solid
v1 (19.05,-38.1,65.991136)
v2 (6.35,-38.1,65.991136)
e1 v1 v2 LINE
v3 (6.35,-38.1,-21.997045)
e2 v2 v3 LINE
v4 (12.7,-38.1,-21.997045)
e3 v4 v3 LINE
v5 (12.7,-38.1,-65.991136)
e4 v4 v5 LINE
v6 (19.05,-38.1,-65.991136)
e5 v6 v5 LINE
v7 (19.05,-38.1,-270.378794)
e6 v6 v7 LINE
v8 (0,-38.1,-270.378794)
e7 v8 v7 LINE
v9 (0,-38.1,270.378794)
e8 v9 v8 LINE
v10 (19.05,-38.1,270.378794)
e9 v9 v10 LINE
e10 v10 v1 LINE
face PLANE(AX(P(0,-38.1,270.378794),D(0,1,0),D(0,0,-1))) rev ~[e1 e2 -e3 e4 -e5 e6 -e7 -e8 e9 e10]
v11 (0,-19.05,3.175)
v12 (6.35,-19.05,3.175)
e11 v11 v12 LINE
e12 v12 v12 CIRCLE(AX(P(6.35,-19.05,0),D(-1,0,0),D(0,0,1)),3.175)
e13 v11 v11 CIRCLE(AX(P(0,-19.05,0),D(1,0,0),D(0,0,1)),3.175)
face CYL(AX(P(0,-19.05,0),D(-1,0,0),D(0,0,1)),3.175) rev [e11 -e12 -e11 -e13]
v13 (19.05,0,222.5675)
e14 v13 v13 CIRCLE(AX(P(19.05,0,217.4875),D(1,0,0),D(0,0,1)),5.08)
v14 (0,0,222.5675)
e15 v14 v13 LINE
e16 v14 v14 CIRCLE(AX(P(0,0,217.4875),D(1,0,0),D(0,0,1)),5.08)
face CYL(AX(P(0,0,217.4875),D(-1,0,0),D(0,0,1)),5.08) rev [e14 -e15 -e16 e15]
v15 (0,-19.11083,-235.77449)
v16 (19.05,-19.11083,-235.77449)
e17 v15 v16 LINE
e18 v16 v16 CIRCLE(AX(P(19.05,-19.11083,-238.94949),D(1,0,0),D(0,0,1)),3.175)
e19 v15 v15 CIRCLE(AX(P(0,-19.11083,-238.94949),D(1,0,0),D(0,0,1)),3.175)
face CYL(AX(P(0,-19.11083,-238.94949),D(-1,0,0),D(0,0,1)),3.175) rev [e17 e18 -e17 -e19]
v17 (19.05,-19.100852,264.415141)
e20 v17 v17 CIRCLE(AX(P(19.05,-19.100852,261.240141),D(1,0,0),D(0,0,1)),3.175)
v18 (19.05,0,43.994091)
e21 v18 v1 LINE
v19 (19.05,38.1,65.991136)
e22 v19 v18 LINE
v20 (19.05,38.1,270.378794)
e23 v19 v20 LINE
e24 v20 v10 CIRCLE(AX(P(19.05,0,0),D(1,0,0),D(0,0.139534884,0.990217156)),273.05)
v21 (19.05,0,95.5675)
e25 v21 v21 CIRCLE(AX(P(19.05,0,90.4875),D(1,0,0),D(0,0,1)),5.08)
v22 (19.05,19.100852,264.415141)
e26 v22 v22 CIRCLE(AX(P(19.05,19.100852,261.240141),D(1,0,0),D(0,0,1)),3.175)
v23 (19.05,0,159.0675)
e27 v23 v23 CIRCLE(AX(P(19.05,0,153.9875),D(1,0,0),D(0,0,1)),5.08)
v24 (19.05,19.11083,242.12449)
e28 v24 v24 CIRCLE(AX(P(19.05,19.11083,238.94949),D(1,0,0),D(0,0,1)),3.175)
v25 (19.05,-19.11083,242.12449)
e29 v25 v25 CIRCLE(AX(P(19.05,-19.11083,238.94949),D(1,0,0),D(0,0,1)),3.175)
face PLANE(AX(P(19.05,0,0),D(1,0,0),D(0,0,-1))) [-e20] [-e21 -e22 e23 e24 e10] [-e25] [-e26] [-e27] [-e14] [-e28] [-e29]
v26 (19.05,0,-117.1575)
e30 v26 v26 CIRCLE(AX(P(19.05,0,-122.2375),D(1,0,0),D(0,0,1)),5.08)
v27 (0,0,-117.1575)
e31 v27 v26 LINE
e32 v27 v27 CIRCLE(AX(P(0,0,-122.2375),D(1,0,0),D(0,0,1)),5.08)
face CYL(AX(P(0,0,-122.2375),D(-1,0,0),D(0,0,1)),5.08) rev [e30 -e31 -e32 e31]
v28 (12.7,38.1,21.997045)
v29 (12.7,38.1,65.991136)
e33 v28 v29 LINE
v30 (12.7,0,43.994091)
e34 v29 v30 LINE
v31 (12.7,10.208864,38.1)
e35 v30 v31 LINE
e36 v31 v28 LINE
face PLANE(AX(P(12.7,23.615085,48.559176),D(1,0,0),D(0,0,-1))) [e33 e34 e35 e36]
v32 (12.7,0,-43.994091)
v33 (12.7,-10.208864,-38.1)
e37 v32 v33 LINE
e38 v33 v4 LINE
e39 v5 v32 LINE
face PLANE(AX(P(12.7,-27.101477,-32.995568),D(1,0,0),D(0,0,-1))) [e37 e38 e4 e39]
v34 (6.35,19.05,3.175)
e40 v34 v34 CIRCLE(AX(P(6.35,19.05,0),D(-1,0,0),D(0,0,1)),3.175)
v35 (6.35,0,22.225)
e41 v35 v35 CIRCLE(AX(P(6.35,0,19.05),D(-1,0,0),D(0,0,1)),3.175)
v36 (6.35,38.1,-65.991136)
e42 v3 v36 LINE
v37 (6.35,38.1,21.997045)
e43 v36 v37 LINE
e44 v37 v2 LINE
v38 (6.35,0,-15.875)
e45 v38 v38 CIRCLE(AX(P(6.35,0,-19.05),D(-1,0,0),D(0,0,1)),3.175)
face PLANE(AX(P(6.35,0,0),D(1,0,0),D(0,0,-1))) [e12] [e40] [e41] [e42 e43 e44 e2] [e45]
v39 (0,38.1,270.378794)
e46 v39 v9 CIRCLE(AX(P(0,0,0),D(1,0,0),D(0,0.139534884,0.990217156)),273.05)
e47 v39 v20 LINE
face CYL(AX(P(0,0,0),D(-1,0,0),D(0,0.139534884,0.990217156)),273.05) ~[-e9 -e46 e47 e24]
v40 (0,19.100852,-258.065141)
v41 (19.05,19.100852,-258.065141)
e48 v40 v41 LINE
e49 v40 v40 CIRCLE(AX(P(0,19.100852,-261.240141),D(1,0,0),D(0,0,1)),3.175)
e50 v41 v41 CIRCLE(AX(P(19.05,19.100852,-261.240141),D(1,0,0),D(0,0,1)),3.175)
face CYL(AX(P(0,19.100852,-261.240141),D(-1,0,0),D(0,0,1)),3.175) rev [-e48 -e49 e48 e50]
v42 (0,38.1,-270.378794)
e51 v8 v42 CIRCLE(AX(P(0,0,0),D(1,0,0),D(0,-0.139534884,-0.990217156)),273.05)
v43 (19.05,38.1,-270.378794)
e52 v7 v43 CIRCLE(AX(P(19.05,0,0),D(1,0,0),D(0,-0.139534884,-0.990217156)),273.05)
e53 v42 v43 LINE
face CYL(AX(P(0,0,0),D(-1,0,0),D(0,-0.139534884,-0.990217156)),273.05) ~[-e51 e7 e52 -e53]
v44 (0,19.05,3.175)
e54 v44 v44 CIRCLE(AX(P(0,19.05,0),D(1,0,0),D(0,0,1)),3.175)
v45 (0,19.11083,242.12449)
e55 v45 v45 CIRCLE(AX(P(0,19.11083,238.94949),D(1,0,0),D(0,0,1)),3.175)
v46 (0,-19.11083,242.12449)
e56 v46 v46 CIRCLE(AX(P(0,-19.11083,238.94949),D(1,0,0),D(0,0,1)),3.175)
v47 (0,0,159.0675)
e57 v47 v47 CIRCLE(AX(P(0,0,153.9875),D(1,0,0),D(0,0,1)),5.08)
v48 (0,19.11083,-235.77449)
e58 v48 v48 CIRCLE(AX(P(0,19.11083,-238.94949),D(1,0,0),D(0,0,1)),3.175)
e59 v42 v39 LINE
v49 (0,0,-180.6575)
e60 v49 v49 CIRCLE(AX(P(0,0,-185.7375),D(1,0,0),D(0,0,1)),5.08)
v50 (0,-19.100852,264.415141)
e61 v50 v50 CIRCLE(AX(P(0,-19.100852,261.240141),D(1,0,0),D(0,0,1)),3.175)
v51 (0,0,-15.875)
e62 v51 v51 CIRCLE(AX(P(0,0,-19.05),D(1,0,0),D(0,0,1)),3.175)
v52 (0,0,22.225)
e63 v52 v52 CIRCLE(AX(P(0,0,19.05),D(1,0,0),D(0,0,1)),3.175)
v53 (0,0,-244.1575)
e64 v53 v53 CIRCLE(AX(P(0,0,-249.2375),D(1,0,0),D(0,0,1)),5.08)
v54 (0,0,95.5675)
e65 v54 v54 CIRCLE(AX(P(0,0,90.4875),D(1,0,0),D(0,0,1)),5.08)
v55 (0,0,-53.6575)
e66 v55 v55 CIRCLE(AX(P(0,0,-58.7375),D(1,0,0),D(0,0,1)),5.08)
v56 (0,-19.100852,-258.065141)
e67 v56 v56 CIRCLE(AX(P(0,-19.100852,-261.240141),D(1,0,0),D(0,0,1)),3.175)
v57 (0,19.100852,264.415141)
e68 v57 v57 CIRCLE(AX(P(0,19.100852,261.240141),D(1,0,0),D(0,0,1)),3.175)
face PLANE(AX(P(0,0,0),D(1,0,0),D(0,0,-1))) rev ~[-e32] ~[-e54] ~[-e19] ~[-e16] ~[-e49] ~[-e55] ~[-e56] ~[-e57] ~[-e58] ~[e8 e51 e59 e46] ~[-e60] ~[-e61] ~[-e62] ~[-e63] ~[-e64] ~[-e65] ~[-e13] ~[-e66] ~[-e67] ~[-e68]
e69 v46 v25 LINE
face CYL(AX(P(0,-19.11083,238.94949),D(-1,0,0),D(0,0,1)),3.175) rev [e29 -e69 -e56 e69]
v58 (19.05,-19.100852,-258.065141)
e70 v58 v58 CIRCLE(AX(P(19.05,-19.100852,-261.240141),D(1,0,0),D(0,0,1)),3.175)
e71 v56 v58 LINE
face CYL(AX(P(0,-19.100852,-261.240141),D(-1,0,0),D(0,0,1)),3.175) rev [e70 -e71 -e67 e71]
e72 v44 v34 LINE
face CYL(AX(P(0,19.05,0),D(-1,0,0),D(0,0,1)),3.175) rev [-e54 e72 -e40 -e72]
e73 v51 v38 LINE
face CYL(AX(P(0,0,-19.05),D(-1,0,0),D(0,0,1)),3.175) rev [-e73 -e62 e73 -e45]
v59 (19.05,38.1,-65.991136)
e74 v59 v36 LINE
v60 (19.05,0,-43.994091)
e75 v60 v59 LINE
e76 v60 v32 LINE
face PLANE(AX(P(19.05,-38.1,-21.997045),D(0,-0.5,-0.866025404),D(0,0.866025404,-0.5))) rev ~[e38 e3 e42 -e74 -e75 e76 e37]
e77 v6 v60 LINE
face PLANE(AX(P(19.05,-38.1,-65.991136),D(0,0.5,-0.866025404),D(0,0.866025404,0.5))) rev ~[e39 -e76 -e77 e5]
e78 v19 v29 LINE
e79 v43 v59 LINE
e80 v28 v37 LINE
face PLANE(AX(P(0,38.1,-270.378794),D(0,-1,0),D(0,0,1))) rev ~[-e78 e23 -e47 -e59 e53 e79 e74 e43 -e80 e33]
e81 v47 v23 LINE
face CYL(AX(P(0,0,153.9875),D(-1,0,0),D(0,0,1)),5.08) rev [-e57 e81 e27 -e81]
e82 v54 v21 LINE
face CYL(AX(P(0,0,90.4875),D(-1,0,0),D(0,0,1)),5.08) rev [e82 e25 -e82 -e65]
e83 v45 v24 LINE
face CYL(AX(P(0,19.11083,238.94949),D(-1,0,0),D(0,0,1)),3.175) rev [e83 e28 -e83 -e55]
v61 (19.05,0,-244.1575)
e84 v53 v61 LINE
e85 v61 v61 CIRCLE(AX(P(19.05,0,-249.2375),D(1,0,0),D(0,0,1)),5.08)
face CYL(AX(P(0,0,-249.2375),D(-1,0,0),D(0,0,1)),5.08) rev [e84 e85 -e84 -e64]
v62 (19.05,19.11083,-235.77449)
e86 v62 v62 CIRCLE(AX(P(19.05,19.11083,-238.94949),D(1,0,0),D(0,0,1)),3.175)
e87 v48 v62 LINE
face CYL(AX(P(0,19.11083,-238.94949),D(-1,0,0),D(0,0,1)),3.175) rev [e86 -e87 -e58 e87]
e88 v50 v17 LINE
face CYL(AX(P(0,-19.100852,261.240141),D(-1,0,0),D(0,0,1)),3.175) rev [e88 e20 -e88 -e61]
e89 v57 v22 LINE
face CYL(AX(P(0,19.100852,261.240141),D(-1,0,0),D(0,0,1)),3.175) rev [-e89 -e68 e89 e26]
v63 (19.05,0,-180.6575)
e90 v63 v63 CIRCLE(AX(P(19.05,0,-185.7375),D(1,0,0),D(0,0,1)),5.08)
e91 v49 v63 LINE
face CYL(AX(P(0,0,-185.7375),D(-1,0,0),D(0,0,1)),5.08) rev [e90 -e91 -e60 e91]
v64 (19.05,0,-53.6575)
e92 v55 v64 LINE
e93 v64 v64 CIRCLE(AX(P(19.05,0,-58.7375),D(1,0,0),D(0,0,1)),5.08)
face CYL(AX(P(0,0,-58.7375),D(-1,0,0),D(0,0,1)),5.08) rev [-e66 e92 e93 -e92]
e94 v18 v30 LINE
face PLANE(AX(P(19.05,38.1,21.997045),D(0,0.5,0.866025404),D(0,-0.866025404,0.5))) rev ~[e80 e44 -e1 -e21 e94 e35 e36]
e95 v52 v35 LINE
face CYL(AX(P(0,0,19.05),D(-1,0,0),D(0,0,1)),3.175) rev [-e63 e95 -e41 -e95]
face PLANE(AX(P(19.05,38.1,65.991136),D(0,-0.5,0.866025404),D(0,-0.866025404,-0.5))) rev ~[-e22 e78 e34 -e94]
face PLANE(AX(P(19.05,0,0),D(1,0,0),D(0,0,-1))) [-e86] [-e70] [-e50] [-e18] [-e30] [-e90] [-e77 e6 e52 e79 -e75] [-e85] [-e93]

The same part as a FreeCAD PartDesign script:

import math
import FreeCAD as App
import Part
import Sketcher
from FreeCAD import Vector
Q = App.Units.Quantity


def add_polygon(sketch, points):
    """Adds a closed chain of lines whose ends are joined by coincident constraints."""
    first, n = sketch.GeometryCount, len(points)
    for a, b in zip(points, points[1:] + points[:1]):
        sketch.addGeometry(Part.LineSegment(App.Vector(*a, 0), App.Vector(*b, 0)), False)
    for i in range(n):
        sketch.addConstraint(Sketcher.Constraint("Coincident", first + i, 2, first + (i + 1) % n, 1))

doc = App.newDocument("Part")
body = doc.addObject("PartDesign::Body", "Body")

# Sketch on YZ plane
sketch1 = doc.addObject("Sketcher::SketchObject", "Sketch")
body.addObject(sketch1)
sketch1.AttachmentSupport = (doc.YZ_Plane, [""])
sketch1.MapMode = "FlatFace"
sketch1.addGeometry([
    Part.LineSegment(Vector(-38.1, 270.4, 0), Vector(-38.1, -270.4, 0)),  # 0
    Part.ArcOfCircle(Part.Circle(Vector(0, 0, 0), Vector(0, 0, 1), 273.1), math.radians(-98.02), math.radians(-81.98)),  # 1
    Part.LineSegment(Vector(38.1, -270.4, 0), Vector(38.1, 270.4, 0)),  # 2
    Part.ArcOfCircle(Part.Circle(Vector(0, 0, 0), Vector(0, 0, 1), 273.1), math.radians(81.98), math.radians(98.02)),  # 3
    Part.Circle(Vector(-19.1, 261.2, 0), Vector(0, 0, 1), 3.2),  # 4
    Part.Circle(Vector(-19.1, 238.9, 0), Vector(0, 0, 1), 3.2),  # 5
    Part.Circle(Vector(0, 217.5, 0), Vector(0, 0, 1), 5.1),  # 6
    Part.Circle(Vector(0, 154, 0), Vector(0, 0, 1), 5.1),  # 7
    Part.Circle(Vector(0, 90.5, 0), Vector(0, 0, 1), 5.1),  # 8
    Part.Circle(Vector(-19.1, 0, 0), Vector(0, 0, 1), 3.2),  # 9
    Part.Circle(Vector(-19.1, -238.9, 0), Vector(0, 0, 1), 3.2),  # 10
    Part.Circle(Vector(-19.1, -261.2, 0), Vector(0, 0, 1), 3.2),  # 11
    Part.Circle(Vector(0, -58.7, 0), Vector(0, 0, 1), 5.1),  # 12
    Part.Circle(Vector(0, -122.2, 0), Vector(0, 0, 1), 5.1),  # 13
    Part.Circle(Vector(0, -185.7, 0), Vector(0, 0, 1), 5.1),  # 14
    Part.Circle(Vector(0, -249.2, 0), Vector(0, 0, 1), 5.1),  # 15
    Part.Circle(Vector(0, 19.1, 0), Vector(0, 0, 1), 3.2),  # 16
    Part.Circle(Vector(19.1, 261.2, 0), Vector(0, 0, 1), 3.2),  # 17
    Part.Circle(Vector(19.1, 238.9, 0), Vector(0, 0, 1), 3.2),  # 18
    Part.Circle(Vector(0, -19.1, 0), Vector(0, 0, 1), 3.2),  # 19
    Part.Circle(Vector(19.1, 0, 0), Vector(0, 0, 1), 3.2),  # 20
    Part.Circle(Vector(19.1, -238.9, 0), Vector(0, 0, 1), 3.2),  # 21
    Part.Circle(Vector(19.1, -261.2, 0), Vector(0, 0, 1), 3.2),  # 22
], False)
sketch1.addConstraint([
    Sketcher.Constraint("Coincident", 0, 2, 1, 1),
    Sketcher.Constraint("Coincident", 1, 2, 2, 1),
    Sketcher.Constraint("Coincident", 2, 2, 3, 1),
    Sketcher.Constraint("Coincident", 3, 2, 0, 1),
    Sketcher.Constraint("Vertical", 0),
    Sketcher.Constraint("Vertical", 2),
    Sketcher.Constraint("Coincident", 1, 3, -1, 1),
    Sketcher.Constraint("Coincident", 3, 3, -1, 1),
    Sketcher.Constraint("Equal", 1, 3),
    Sketcher.Constraint("Equal", 4, 5),
    Sketcher.Constraint("Equal", 6, 7),
    Sketcher.Constraint("Equal", 7, 8),
    Sketcher.Constraint("Equal", 5, 9),
    Sketcher.Constraint("Equal", 9, 10),
    Sketcher.Constraint("Equal", 10, 11),
    Sketcher.Constraint("Equal", 8, 12),
    Sketcher.Constraint("Equal", 12, 13),
    Sketcher.Constraint("Equal", 13, 14),
    Sketcher.Constraint("Equal", 14, 15),
    Sketcher.Constraint("Equal", 11, 16),
    Sketcher.Constraint("Equal", 16, 17),
    Sketcher.Constraint("Equal", 17, 18),
    Sketcher.Constraint("Equal", 18, 19),
    Sketcher.Constraint("Equal", 19, 20),
    Sketcher.Constraint("Equal", 20, 21),
    Sketcher.Constraint("Equal", 21, 22),
    Sketcher.Constraint("Symmetric", 11, 3, 17, 3, -1, 1),
    Sketcher.Constraint("Symmetric", 10, 3, 18, 3, -1, 1),
    Sketcher.Constraint("Symmetric", 16, 3, 19, 3, -1, 1),
    Sketcher.Constraint("Symmetric", 9, 3, 20, 3, -1, 1),
    Sketcher.Constraint("Symmetric", 5, 3, 21, 3, -1, 1),
    Sketcher.Constraint("Symmetric", 4, 3, 22, 3, -1, 1),
    Sketcher.Constraint("Symmetric", 4, 3, 17, 3, -2),
    Sketcher.Constraint("Symmetric", 5, 3, 18, 3, -2),
    Sketcher.Constraint("PointOnObject", 6, 3, -2),
    Sketcher.Constraint("PointOnObject", 7, 3, -2),
    Sketcher.Constraint("PointOnObject", 8, 3, -2),
    Sketcher.Constraint("PointOnObject", 9, 3, -1),
    Sketcher.Constraint("PointOnObject", 12, 3, -2),
    Sketcher.Constraint("PointOnObject", 13, 3, -2),
    Sketcher.Constraint("PointOnObject", 14, 3, -2),
    Sketcher.Constraint("PointOnObject", 15, 3, -2),
    Sketcher.Constraint("PointOnObject", 16, 3, -2),
    Sketcher.Constraint("Horizontal", 0, 2, 1, 2),
    Sketcher.Constraint("Diameter", 6, Q("0.4 in")),
    Sketcher.Constraint("Diameter", 4, Q("0.25 in")),
    Sketcher.Constraint("Radius", 1, Q("10.75 in")),
    Sketcher.Constraint("DistanceY", 8, 3, 6, 3, Q("5 in")),
    Sketcher.Constraint("DistanceY", 14, 3, 12, 3, Q("5 in")),
    Sketcher.Constraint("DistanceY", 15, 3, 13, 3, Q("5 in")),
    Sketcher.Constraint("DistanceX", 0, 2, -1, 1, Q("1.5 in")),
    Sketcher.Constraint("DistanceY", 7, 3, 6, 3, Q("2.5 in")),
    Sketcher.Constraint("DistanceY", 13, 3, 12, 3, Q("2.5 in")),
    Sketcher.Constraint("DistanceY", 19, 3, 16, 3, Q("1.5 in")),
    Sketcher.Constraint("DistanceX", 9, 3, 20, 3, Q("1.5 in")),
    Sketcher.Constraint("DistanceY", -1, 1, 6, 3, Q("8.5625 in")),
    Sketcher.Constraint("DistanceY", 12, 3, -1, 1, Q("2.3125 in")),
    Sketcher.Constraint("DistanceY", -1, 1, 4, 3, 261.240141),
    Sketcher.Constraint("DistanceX", 5, 3, -1, 1, 19.11083),
    Sketcher.Constraint("DistanceY", -1, 1, 5, 3, 238.94949),
    Sketcher.Constraint("DistanceX", 4, 3, -1, 1, 19.100852),
])
pad1 = doc.addObject("PartDesign::Pad", "Pad")
body.addObject(pad1)
pad1.Profile = sketch1
pad1.Length = Q("0.75 in")

# Sketch on YZ plane
sketch2 = doc.addObject("Sketcher::SketchObject", "Sketch001")
body.addObject(sketch2)
sketch2.AttachmentSupport = (doc.YZ_Plane, [""])
sketch2.MapMode = "FlatFace"
sketch2.AttachmentOffset = App.Placement(Vector(0, 0, 0.75 * 25.4), App.Rotation())
add_polygon(sketch2, [(-38, -22), (38, -66), (38, 22), (-38, 66)])  # lines 0-3
sketch2.addConstraint([
    Sketcher.Constraint("Vertical", 1),
    Sketcher.Constraint("Vertical", 3),
    Sketcher.Constraint("Symmetric", 0, 2, 2, 2, -1, 1),
    Sketcher.Constraint("Parallel", 0, 2),
    Sketcher.Constraint("Angle", 0, Q("-30 deg")),
    Sketcher.Constraint("DistanceX", 2, 2, 1, 2, Q("3 in")),
    Sketcher.Constraint("DistanceY", 1, 1, 1, 2, 87.988181),
])
pocket1 = doc.addObject("PartDesign::Pocket", "Pocket")
body.addObject(pocket1)
pocket1.Profile = sketch2
pocket1.Length = Q("0.5 in")

# Sketch on YZ plane
sketch3 = doc.addObject("Sketcher::SketchObject", "Sketch002")
body.addObject(sketch3)
sketch3.AttachmentSupport = (doc.YZ_Plane, [""])
sketch3.MapMode = "FlatFace"
sketch3.AttachmentOffset = App.Placement(Vector(0, 0, 0.75 * 25.4), App.Rotation())
add_polygon(sketch3, [(0, 44), (10, 38), (38, 22), (38, 66)])  # lines 0-3
add_polygon(sketch3, [(-38, -22), (-38, -66), (0, -44), (-10, -38)])  # lines 4-7
sketch3.addConstraint([
    Sketcher.Constraint("Vertical", 2),
    Sketcher.Constraint("Vertical", 4),
    Sketcher.Constraint("Symmetric", 2, 2, 4, 2, -1, 1),
    Sketcher.Constraint("Symmetric", 3, 2, 5, 2, -1, 1),
    Sketcher.Constraint("Symmetric", 0, 2, 6, 2, -1, 1),
    Sketcher.Constraint("PointOnObject", 3, 2, -2),
    Sketcher.Constraint("Parallel", 0, 1),
    Sketcher.Constraint("Parallel", 6, 7),
    Sketcher.Constraint("Angle", 0, Q("-30 deg")),
    Sketcher.Constraint("Angle", 3, Q("-150 deg")),
    Sketcher.Constraint("DistanceX", 4, 2, 1, 2, Q("3 in")),
    Sketcher.Constraint("DistanceY", 6, 2, 0, 2, Q("3 in")),
    Sketcher.Constraint("Distance", 0, 11.788181),
])
pocket2 = doc.addObject("PartDesign::Pocket", "Pocket001")
body.addObject(pocket2)
pocket2.Profile = sketch3
pocket2.Length = Q("0.25 in")

doc.recompute()
